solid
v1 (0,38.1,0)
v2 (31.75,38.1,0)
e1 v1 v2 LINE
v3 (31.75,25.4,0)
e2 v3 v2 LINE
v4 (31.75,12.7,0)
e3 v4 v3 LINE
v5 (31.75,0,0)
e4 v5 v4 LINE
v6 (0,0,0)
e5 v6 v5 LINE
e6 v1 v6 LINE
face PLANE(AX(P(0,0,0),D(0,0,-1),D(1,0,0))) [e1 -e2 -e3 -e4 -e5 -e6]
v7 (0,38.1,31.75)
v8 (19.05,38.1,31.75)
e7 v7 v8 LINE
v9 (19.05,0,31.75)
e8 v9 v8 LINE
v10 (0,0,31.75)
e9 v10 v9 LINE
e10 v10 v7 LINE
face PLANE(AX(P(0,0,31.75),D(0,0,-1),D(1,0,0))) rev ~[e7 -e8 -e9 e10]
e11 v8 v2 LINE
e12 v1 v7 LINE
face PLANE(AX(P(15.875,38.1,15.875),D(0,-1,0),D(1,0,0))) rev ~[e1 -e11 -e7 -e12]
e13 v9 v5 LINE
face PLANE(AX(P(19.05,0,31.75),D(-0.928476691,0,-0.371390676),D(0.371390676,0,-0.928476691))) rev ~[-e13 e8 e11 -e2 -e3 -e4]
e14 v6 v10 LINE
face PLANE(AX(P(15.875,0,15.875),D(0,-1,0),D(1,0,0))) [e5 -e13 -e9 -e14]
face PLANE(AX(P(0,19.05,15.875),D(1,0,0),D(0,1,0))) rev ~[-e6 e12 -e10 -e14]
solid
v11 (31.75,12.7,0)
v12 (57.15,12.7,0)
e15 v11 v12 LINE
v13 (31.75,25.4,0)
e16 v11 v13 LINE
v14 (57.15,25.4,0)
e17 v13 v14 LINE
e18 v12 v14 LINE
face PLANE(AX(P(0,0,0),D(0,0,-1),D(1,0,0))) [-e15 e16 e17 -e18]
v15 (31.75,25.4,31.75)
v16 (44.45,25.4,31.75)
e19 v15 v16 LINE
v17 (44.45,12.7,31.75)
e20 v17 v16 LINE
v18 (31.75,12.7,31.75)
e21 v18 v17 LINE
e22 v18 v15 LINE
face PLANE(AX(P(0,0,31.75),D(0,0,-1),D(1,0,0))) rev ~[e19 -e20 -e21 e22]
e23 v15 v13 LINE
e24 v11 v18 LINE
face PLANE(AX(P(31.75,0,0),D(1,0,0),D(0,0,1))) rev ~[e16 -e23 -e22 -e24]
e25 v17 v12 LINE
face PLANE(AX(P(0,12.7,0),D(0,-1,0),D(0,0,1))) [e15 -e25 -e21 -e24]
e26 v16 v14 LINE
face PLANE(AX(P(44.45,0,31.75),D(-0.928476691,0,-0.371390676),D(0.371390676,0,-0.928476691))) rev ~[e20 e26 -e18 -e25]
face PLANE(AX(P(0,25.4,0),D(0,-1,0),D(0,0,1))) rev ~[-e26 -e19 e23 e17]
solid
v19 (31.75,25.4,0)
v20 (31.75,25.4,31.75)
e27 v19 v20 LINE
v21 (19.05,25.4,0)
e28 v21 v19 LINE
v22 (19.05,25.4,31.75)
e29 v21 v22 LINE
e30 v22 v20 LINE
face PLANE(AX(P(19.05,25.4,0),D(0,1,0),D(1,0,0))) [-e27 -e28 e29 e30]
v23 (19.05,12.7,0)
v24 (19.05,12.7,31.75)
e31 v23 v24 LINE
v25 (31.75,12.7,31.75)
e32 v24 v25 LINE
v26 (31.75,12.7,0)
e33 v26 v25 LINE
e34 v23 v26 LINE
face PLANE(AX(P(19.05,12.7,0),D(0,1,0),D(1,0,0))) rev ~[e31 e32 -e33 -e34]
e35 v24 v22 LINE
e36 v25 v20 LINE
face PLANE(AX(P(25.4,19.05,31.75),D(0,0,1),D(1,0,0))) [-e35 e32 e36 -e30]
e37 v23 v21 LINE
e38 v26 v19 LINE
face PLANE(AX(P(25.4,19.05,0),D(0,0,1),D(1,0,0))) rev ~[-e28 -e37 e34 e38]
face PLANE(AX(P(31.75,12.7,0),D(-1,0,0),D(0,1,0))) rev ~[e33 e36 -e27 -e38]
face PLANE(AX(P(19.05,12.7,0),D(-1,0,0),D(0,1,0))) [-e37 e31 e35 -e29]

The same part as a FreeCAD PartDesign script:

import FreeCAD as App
import Part
import Sketcher

V = App.Vector
Q = App.Units.Quantity

doc = App.newDocument("Part")
body = doc.addObject("PartDesign::Body", "Body")
body.AllowCompound = True

sketch1 = body.newObject("Sketcher::SketchObject", "Sketch")
sketch1.AttachmentSupport = (doc.getObject("XZ_Plane"), [""])
sketch1.MapMode = "FlatFace"
sketch1.addGeometry(Part.LineSegment(V(0, 32, 0), V(0, 0, 0)), False)
sketch1.addGeometry(Part.LineSegment(V(0, 0, 0), V(32, 0, 0)), False)
sketch1.addGeometry(Part.LineSegment(V(32, 0, 0), V(32, 32, 0)), False)
sketch1.addGeometry(Part.LineSegment(V(32, 32, 0), V(0, 32, 0)), False)
sketch1.addConstraint(Sketcher.Constraint("Coincident", 0, 2, 1, 1))
sketch1.addConstraint(Sketcher.Constraint("Coincident", 1, 2, 2, 1))
sketch1.addConstraint(Sketcher.Constraint("Coincident", 2, 2, 3, 1))
sketch1.addConstraint(Sketcher.Constraint("Coincident", 3, 2, 0, 1))
sketch1.addConstraint(Sketcher.Constraint("Vertical", 0))
sketch1.addConstraint(Sketcher.Constraint("Horizontal", 1))
sketch1.addConstraint(Sketcher.Constraint("Vertical", 2))
sketch1.addConstraint(Sketcher.Constraint("Horizontal", 3))
sketch1.addConstraint(Sketcher.Constraint("Coincident", 0, 2, -1, 1))
sketch1.addConstraint(Sketcher.Constraint("Equal", 3, 0))
sketch1.addConstraint(Sketcher.Constraint("DistanceX", 1, 1, 1, 2, Q("1.25 in")))
pad1 = body.newObject("PartDesign::Pad", "Pad")
pad1.Profile = sketch1
pad1.Length = Q("1.5 in")
pad1.Reversed = True

sketch2 = body.newObject("Sketcher::SketchObject", "Sketch001")
sketch2.AttachmentSupport = (doc.getObject("YZ_Plane"), [""])
sketch2.MapMode = "FlatFace"
sketch2.addGeometry(Part.LineSegment(V(13, 32, 0), V(13, 0, 0)), False)
sketch2.addGeometry(Part.LineSegment(V(13, 0, 0), V(25, 0, 0)), False)
sketch2.addGeometry(Part.LineSegment(V(25, 0, 0), V(25, 32, 0)), False)
sketch2.addGeometry(Part.LineSegment(V(25, 32, 0), V(13, 32, 0)), False)
sketch2.addConstraint(Sketcher.Constraint("Coincident", 0, 2, 1, 1))
sketch2.addConstraint(Sketcher.Constraint("Coincident", 1, 2, 2, 1))
sketch2.addConstraint(Sketcher.Constraint("Coincident", 2, 2, 3, 1))
sketch2.addConstraint(Sketcher.Constraint("Coincident", 3, 2, 0, 1))
sketch2.addConstraint(Sketcher.Constraint("Vertical", 0))
sketch2.addConstraint(Sketcher.Constraint("Horizontal", 1))
sketch2.addConstraint(Sketcher.Constraint("Vertical", 2))
sketch2.addConstraint(Sketcher.Constraint("Horizontal", 3))
sketch2.addConstraint(Sketcher.Constraint("PointOnObject", 0, 2, -1))
sketch2.addConstraint(Sketcher.Constraint("DistanceX", 1, 1, 1, 2, Q("0.5 in")))
sketch2.addConstraint(Sketcher.Constraint("DistanceX", -1, 1, 1, 2, Q("1 in")))
sketch2.addConstraint(Sketcher.Constraint("DistanceY", 0, 2, 0, 1, Q("1.25 in")))
pad2 = body.newObject("PartDesign::Pad", "Pad001")
pad2.Profile = sketch2
pad2.Length = Q("2.25 in")

sketch3 = body.newObject("Sketcher::SketchObject", "Sketch002")
sketch3.AttachmentSupport = (doc.getObject("XZ_Plane"), [""])
sketch3.MapMode = "FlatFace"
sketch3.addGeometry(Part.LineSegment(V(57, 32, 0), V(44, 32, 0)), False)
sketch3.addGeometry(Part.LineSegment(V(44, 32, 0), V(57, 0, 0)), False)
sketch3.addGeometry(Part.LineSegment(V(57, 0, 0), V(57, 32, 0)), False)
sketch3.addConstraint(Sketcher.Constraint("Coincident", 0, 2, 1, 1))
sketch3.addConstraint(Sketcher.Constraint("Coincident", 1, 2, 2, 1))
sketch3.addConstraint(Sketcher.Constraint("Coincident", 2, 2, 0, 1))
sketch3.addConstraint(Sketcher.Constraint("Horizontal", 0))
sketch3.addConstraint(Sketcher.Constraint("Vertical", 2))
sketch3.addConstraint(Sketcher.Constraint("PointOnObject", 1, 2, -1))
sketch3.addConstraint(Sketcher.Constraint("DistanceX", 0, 2, 0, 1, Q("0.5 in")))
sketch3.addConstraint(Sketcher.Constraint("DistanceY", 2, 1, 2, 2, Q("1.25 in")))
sketch3.addConstraint(Sketcher.Constraint("DistanceX", -1, 1, 0, 2, Q("1.75 in")))
pocket1 = body.newObject("PartDesign::Pocket", "Pocket")
pocket1.Profile = sketch3
pocket1.Length = Q("1 in")

sketch4 = body.newObject("Sketcher::SketchObject", "Sketch003")
sketch4.AttachmentSupport = (doc.getObject("XZ_Plane"), [""])
sketch4.MapMode = "FlatFace"
sketch4.addGeometry(Part.LineSegment(V(32, 32, 0), V(19, 32, 0)), False)
sketch4.addGeometry(Part.LineSegment(V(19, 32, 0), V(32, 0, 0)), False)
sketch4.addGeometry(Part.LineSegment(V(32, 0, 0), V(32, 32, 0)), False)
sketch4.addConstraint(Sketcher.Constraint("Coincident", 0, 2, 1, 1))
sketch4.addConstraint(Sketcher.Constraint("Coincident", 1, 2, 2, 1))
sketch4.addConstraint(Sketcher.Constraint("Coincident", 2, 2, 0, 1))
sketch4.addConstraint(Sketcher.Constraint("Horizontal", 0))
sketch4.addConstraint(Sketcher.Constraint("Vertical", 2))
sketch4.addConstraint(Sketcher.Constraint("PointOnObject", 1, 2, -1))
sketch4.addConstraint(Sketcher.Constraint("DistanceX", 0, 2, 0, 1, Q("0.5 in")))
sketch4.addConstraint(Sketcher.Constraint("DistanceY", 2, 1, 2, 2, Q("1.25 in")))
sketch4.addConstraint(Sketcher.Constraint("DistanceX", -1, 1, 0, 2, Q("0.75 in")))
pocket2 = body.newObject("PartDesign::Pocket", "Pocket001")
pocket2.Profile = sketch4
pocket2.Length = Q("0.5 in")

sketch5 = body.newObject("Sketcher::SketchObject", "Sketch004")
sketch5.AttachmentSupport = (doc.getObject("XZ_Plane"), [""])
sketch5.MapMode = "FlatFace"
sketch5.addGeometry(Part.LineSegment(V(19, 32, 0), V(32, 0, 0)), False)
sketch5.addGeometry(Part.LineSegment(V(32, 0, 0), V(32, 32, 0)), False)
sketch5.addGeometry(Part.LineSegment(V(32, 32, 0), V(19, 32, 0)), False)
sketch5.addConstraint(Sketcher.Constraint("Coincident", 0, 2, 1, 1))
sketch5.addConstraint(Sketcher.Constraint("Coincident", 1, 2, 2, 1))
sketch5.addConstraint(Sketcher.Constraint("Coincident", 2, 2, 0, 1))
sketch5.addConstraint(Sketcher.Constraint("Vertical", 1))
sketch5.addConstraint(Sketcher.Constraint("Horizontal", 2))
sketch5.addConstraint(Sketcher.Constraint("PointOnObject", 0, 2, -1))
sketch5.addConstraint(Sketcher.Constraint("DistanceX", 2, 2, 2, 1, Q("0.5 in")))
sketch5.addConstraint(Sketcher.Constraint("DistanceY", 1, 1, 1, 2, Q("1.25 in")))
sketch5.addConstraint(Sketcher.Constraint("DistanceX", -1, 1, 0, 2, Q("1.25 in")))
pocket3 = body.newObject("PartDesign::Pocket", "Pocket002")
pocket3.Profile = sketch5
pocket3.Length = Q("1.5 in")
body2 = doc.addObject("PartDesign::Body", "Body001")

sketch6 = body2.newObject("Sketcher::SketchObject", "Sketch005")
sketch6.AttachmentSupport = (doc.getObject("XY_Plane001"), [""])
sketch6.MapMode = "FlatFace"
sketch6.addGeometry(Part.LineSegment(V(19, 25, 0), V(19, 13, 0)), False)
sketch6.addGeometry(Part.LineSegment(V(19, 13, 0), V(32, 13, 0)), False)
sketch6.addGeometry(Part.LineSegment(V(32, 13, 0), V(32, 25, 0)), False)
sketch6.addGeometry(Part.LineSegment(V(32, 25, 0), V(19, 25, 0)), False)
sketch6.addConstraint(Sketcher.Constraint("Coincident", 0, 2, 1, 1))
sketch6.addConstraint(Sketcher.Constraint("Coincident", 1, 2, 2, 1))
sketch6.addConstraint(Sketcher.Constraint("Coincident", 2, 2, 3, 1))
sketch6.addConstraint(Sketcher.Constraint("Coincident", 3, 2, 0, 1))
sketch6.addConstraint(Sketcher.Constraint("Vertical", 0))
sketch6.addConstraint(Sketcher.Constraint("Horizontal", 1))
sketch6.addConstraint(Sketcher.Constraint("Vertical", 2))
sketch6.addConstraint(Sketcher.Constraint("Horizontal", 3))
sketch6.addConstraint(Sketcher.Constraint("Equal", 3, 0))
sketch6.addConstraint(Sketcher.Constraint("DistanceX", 1, 1, 1, 2, Q("0.5 in")))
sketch6.addConstraint(Sketcher.Constraint("DistanceY", -1, 1, 2, 2, Q("1 in")))
sketch6.addConstraint(Sketcher.Constraint("DistanceX", -1, 1, 0, 2, Q("0.75 in")))
pad3 = body2.newObject("PartDesign::Pad", "Pad002")
pad3.Profile = sketch6
pad3.Length = Q("1.25 in")

doc.recompute()
